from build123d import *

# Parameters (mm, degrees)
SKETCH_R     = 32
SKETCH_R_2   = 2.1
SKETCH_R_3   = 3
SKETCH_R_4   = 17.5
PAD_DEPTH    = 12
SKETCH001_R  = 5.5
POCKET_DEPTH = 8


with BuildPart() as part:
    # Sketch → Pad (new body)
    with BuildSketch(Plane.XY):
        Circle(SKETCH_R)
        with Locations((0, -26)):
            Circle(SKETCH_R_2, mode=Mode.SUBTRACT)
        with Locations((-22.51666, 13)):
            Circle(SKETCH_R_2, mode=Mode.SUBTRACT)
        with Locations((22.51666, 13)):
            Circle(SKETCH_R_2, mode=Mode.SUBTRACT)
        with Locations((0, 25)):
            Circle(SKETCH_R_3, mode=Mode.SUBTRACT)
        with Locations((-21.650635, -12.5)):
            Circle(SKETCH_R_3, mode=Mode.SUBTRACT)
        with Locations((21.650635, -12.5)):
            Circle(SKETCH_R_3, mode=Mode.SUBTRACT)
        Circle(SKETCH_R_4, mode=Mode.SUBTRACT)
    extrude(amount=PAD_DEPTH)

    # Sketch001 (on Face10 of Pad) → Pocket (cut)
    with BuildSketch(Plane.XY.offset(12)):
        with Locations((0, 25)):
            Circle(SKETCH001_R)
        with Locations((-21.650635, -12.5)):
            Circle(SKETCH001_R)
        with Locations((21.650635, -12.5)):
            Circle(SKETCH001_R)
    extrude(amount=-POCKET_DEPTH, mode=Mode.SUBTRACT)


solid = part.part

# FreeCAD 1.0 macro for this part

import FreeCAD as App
import Part
import Sketcher
from FreeCAD import Vector

doc = App.newDocument("Part")
body = doc.addObject("PartDesign::Body", "Body")

# Sketch on XY plane
sketch1 = body.newObject("Sketcher::SketchObject", "Sketch")
sketch1.AttachmentSupport = (doc.getObject("XY_Plane"), [""])
sketch1.MapMode = "FlatFace"
sketch1.addGeometry([
    Part.Circle(Vector(0, 0, 0), Vector(0, 0, 1), 32),  # 0
    Part.Circle(Vector(-21.650635, -12.5, 0), Vector(0, 0, 1), 3),  # 1
    Part.Circle(Vector(0, -26, 0), Vector(0, 0, 1), 2.1),  # 2
    Part.Circle(Vector(21.650635, -12.5, 0), Vector(0, 0, 1), 3),  # 3
    Part.Circle(Vector(-22.51666, 13, 0), Vector(0, 0, 1), 2.1),  # 4
    Part.Circle(Vector(0, 0, 0), Vector(0, 0, 1), 17.5),  # 5
    Part.Circle(Vector(22.51666, 13, 0), Vector(0, 0, 1), 2.1),  # 6
    Part.Circle(Vector(0, 25, 0), Vector(0, 0, 1), 3),  # 7
], False)
sketch1.addConstraint([
    Sketcher.Constraint("Coincident", 0, 3, -1, 1),
    Sketcher.Constraint("Coincident", 5, 3, -1, 1),
    Sketcher.Constraint("Equal", 1, 3),
    Sketcher.Constraint("Equal", 2, 4),
    Sketcher.Constraint("Equal", 4, 6),
    Sketcher.Constraint("Equal", 3, 7),
    Sketcher.Constraint("Symmetric", 1, 3, 3, 3, -2),
    Sketcher.Constraint("Symmetric", 4, 3, 6, 3, -2),
    Sketcher.Constraint("PointOnObject", 2, 3, -2),
    Sketcher.Constraint("PointOnObject", 7, 3, -2),
    Sketcher.Constraint("Diameter", 0, 64.0),
    Sketcher.Constraint("Diameter", 1, 6.0),
    Sketcher.Constraint("Diameter", 5, 35.0),
    Sketcher.Constraint("Diameter", 2, 4.2),
    Sketcher.Constraint("DistanceY", 2, 3, -1, 1, 26.0),
    Sketcher.Constraint("DistanceY", -1, 1, 4, 3, 13.0),
    Sketcher.Constraint("DistanceY", -1, 1, 7, 3, 25.0),
    Sketcher.Constraint("DistanceY", 1, 3, -1, 1, 12.5),
    Sketcher.Constraint("DistanceX", 4, 3, -1, 1, 22.51666),
    Sketcher.Constraint("DistanceX", 1, 3, 3, 3, 43.30127),
])
pad1 = body.newObject("PartDesign::Pad", "Pad")
pad1.Profile = sketch1
pad1.Length = 12

# Sketch on XY plane
sketch2 = body.newObject("Sketcher::SketchObject", "Sketch001")
sketch2.AttachmentSupport = (doc.getObject("XY_Plane"), [""])
sketch2.MapMode = "FlatFace"
sketch2.AttachmentOffset = App.Placement(Vector(0, 0, 12), App.Rotation())
sketch2.addGeometry([
    Part.Circle(Vector(0, 25, 0), Vector(0, 0, 1), 5.5),
    Part.Circle(Vector(-21.650635, -12.5, 0), Vector(0, 0, 1), 5.5),
    Part.Circle(Vector(21.650635, -12.5, 0), Vector(0, 0, 1), 5.5),
], False)
sketch2.addConstraint([
    Sketcher.Constraint("Equal", 0, 1),
    Sketcher.Constraint("Equal", 1, 2),
    Sketcher.Constraint("Symmetric", 1, 3, 2, 3, -2),
    Sketcher.Constraint("PointOnObject", 0, 3, -2),
    Sketcher.Constraint("Diameter", 0, 11.0),
    Sketcher.Constraint("DistanceY", -1, 1, 0, 3, 25.0),
    Sketcher.Constraint("DistanceY", 1, 3, -1, 1, 12.5),
    Sketcher.Constraint("DistanceX", 1, 3, 2, 3, 43.30127),
])
pocket1 = body.newObject("PartDesign::Pocket", "Pocket")
pocket1.Profile = sketch2
pocket1.Length = 8

doc.recompute()
